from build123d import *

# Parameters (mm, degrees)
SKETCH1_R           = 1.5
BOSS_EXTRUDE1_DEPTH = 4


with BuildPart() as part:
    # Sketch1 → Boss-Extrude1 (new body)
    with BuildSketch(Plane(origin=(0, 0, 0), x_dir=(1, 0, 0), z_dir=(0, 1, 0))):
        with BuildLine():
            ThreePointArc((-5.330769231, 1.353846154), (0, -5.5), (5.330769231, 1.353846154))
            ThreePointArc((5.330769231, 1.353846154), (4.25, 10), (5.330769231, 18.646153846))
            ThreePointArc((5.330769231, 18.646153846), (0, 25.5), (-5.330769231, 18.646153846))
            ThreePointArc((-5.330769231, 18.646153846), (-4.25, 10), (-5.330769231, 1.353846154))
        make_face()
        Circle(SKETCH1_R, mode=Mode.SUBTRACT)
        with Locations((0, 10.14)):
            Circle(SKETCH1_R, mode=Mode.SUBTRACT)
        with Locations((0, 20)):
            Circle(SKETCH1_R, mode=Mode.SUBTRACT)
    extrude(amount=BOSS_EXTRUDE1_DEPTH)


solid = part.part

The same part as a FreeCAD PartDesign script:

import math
import FreeCAD as App
import Part
import Sketcher

V = App.Vector
Q = App.Units.Quantity

doc = App.newDocument("Part")
body = doc.addObject("PartDesign::Body", "Body")

# Sketch on XZ plane
sketch1 = doc.addObject("Sketcher::SketchObject", "Sketch")
body.addObject(sketch1)
sketch1.AttachmentSupport = (doc.XZ_Plane, [""])
sketch1.MapMode = "FlatFace"
sketch1.addGeometry([
    Part.ArcOfCircle(Part.Circle(V(0, 0, 0), V(0, 0, 1), 5.5), math.radians(-14), math.radians(194)),  # 0
    Part.ArcOfCircle(Part.Circle(V(39.4, -10, 0), V(0, 0, 1), 35.1), math.radians(166), math.radians(194)),  # 1
    Part.ArcOfCircle(Part.Circle(V(0, -20, 0), V(0, 0, 1), 5.5), math.radians(166), math.radians(374)),  # 2
    Part.ArcOfCircle(Part.Circle(V(-39.4, -10, 0), V(0, 0, 1), 35.1), math.radians(-14), math.radians(14)),  # 3
    Part.Circle(V(0, 0, 0), V(0, 0, 1), 1.5),  # 4
    Part.Circle(V(0, -10.1, 0), V(0, 0, 1), 1.5),  # 5
    Part.Circle(V(0, -20, 0), V(0, 0, 1), 1.5),  # 6
], False)
sketch1.addConstraint([
    Sketcher.Constraint("Tangent", 0, 1, 1, 1),
    Sketcher.Constraint("Tangent", 1, 2, 2, 2),
    Sketcher.Constraint("Tangent", 2, 1, 3, 1),
    Sketcher.Constraint("Tangent", 3, 2, 0, 2),
    Sketcher.Constraint("Coincident", 0, 3, -1, 1),
    Sketcher.Constraint("Coincident", 4, 3, -1, 1),
    Sketcher.Constraint("Coincident", 6, 3, 2, 3),
    Sketcher.Constraint("Equal", 0, 2),
    Sketcher.Constraint("Equal", 1, 3),
    Sketcher.Constraint("Equal", 4, 5),
    Sketcher.Constraint("Equal", 5, 6),
    Sketcher.Constraint("PointOnObject", 2, 3, -2),
    Sketcher.Constraint("PointOnObject", 5, 3, -2),
    Sketcher.Constraint("Diameter", 4, Q("3 mm")),
    Sketcher.Constraint("Radius", 0, Q("5.5 mm")),
    Sketcher.Constraint("DistanceY", 1, 3, -1, 1, Q("10 mm")),
    Sketcher.Constraint("Radius", 1, Q("35.125 mm")),
    Sketcher.Constraint("DistanceY", 5, 3, -1, 1, Q("10.14 mm")),
])
pad1 = doc.addObject("PartDesign::Pad", "Pad")
body.addObject(pad1)
pad1.Profile = sketch1
pad1.Length = 4
pad1.Reversed = True

doc.recompute()
